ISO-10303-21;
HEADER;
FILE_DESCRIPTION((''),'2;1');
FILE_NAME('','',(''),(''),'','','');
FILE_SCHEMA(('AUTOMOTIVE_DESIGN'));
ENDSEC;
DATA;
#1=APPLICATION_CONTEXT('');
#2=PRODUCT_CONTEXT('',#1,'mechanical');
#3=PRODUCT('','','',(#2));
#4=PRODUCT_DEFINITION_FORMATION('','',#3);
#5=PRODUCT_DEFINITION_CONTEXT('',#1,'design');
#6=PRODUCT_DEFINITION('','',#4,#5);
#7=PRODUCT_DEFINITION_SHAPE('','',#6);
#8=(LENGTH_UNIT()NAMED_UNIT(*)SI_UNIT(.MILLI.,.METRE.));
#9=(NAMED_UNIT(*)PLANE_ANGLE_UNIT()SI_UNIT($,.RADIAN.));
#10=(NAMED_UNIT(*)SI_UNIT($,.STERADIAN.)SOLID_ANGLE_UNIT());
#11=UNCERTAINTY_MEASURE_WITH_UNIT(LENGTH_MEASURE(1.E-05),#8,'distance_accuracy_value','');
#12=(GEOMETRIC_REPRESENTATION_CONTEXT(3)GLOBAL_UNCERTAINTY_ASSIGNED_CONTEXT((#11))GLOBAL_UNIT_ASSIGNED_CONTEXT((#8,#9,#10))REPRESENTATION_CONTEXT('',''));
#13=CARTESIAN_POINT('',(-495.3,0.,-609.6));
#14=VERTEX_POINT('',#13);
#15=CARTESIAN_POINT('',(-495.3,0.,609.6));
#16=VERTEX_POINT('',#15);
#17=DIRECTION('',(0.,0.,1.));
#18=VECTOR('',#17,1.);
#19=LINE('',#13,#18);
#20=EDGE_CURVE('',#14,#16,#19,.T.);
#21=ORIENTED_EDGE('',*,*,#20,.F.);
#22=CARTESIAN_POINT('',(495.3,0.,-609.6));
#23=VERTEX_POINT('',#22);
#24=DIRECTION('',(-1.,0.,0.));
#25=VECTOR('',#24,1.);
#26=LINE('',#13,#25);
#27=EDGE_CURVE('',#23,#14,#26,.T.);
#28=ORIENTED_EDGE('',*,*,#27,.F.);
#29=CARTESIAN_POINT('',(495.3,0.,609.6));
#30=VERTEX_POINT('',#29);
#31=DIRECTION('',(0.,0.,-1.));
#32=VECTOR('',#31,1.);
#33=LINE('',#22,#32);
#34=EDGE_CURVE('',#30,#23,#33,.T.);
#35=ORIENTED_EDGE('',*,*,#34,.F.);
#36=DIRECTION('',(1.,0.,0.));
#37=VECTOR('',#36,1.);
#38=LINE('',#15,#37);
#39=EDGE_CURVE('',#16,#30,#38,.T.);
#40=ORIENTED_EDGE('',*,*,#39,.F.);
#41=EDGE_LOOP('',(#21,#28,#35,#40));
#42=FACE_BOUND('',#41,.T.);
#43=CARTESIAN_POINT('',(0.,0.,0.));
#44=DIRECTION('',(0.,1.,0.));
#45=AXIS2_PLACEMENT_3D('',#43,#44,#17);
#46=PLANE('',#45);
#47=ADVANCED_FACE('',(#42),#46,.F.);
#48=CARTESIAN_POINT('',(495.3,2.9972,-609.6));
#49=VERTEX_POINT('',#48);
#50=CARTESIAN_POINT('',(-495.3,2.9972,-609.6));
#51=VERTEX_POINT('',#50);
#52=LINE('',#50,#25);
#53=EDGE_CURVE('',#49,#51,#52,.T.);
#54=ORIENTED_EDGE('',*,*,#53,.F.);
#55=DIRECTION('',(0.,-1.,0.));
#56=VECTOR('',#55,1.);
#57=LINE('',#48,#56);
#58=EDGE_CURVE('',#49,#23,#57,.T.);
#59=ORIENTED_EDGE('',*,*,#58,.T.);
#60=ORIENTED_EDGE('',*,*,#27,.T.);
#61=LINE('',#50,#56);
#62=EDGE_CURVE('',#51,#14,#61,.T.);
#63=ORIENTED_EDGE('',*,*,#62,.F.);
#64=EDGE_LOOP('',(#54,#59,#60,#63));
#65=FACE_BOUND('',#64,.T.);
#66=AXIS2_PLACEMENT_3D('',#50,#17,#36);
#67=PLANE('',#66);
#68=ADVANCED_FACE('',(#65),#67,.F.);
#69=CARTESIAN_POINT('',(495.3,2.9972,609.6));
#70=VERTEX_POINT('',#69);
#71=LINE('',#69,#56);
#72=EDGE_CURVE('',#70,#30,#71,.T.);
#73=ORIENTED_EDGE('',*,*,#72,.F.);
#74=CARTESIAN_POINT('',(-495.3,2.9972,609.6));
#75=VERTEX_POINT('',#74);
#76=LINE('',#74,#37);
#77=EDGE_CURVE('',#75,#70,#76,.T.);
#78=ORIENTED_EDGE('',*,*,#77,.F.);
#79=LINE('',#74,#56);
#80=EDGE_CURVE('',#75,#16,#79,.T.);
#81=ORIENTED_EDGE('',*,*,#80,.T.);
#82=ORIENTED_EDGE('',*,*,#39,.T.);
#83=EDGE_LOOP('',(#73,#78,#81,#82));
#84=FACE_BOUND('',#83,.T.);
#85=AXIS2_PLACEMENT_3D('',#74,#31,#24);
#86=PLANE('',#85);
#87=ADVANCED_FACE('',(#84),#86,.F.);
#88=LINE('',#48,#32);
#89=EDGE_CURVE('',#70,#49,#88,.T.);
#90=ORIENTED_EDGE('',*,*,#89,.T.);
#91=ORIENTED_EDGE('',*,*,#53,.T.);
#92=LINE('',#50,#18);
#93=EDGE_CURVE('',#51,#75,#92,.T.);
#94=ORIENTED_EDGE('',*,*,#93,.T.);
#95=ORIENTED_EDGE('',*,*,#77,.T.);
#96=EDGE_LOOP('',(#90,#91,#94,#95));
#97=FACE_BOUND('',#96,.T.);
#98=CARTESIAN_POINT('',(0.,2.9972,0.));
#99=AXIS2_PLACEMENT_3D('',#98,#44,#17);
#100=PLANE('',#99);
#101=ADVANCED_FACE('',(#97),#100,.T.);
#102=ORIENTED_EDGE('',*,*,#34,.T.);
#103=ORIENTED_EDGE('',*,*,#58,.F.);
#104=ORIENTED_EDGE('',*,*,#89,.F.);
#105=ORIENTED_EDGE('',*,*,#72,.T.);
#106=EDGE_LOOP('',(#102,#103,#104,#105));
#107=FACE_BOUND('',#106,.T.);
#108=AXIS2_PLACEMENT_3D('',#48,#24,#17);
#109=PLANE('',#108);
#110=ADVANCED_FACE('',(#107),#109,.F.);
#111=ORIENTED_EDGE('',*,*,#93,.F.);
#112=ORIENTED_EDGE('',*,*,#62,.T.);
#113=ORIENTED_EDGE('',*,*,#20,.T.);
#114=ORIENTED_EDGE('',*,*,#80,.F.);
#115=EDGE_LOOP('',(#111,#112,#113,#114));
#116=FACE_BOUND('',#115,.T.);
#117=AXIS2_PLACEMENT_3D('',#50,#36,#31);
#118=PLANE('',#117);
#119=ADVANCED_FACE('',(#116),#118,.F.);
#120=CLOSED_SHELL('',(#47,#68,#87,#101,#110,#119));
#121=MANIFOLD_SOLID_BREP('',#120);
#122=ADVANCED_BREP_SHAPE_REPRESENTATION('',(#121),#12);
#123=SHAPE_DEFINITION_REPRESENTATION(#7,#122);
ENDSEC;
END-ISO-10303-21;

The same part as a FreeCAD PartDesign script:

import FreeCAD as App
import Part
import Sketcher
Q = App.Units.Quantity

doc = App.newDocument("Part")
body = doc.addObject("PartDesign::Body", "Body")

sketch1 = body.newObject("Sketcher::SketchObject", "Sketch")
sketch1.AttachmentSupport = (doc.getObject("XZ_Plane"), [""])
sketch1.MapMode = "FlatFace"
sketch1.addGeometry([
    Part.LineSegment(App.Vector(-495.3, -609.6, 0), App.Vector(-495.3, 609.6, 0)),
    Part.LineSegment(App.Vector(-495.3, 609.6, 0), App.Vector(495.3, 609.6, 0)),
    Part.LineSegment(App.Vector(495.3, 609.6, 0), App.Vector(495.3, -609.6, 0)),
    Part.LineSegment(App.Vector(495.3, -609.6, 0), App.Vector(-495.3, -609.6, 0)),
], False)
sketch1.addConstraint([
    Sketcher.Constraint("Coincident", 0, 2, 1, 1),
    Sketcher.Constraint("Coincident", 1, 2, 2, 1),
    Sketcher.Constraint("Coincident", 2, 2, 3, 1),
    Sketcher.Constraint("Coincident", 3, 2, 0, 1),
    Sketcher.Constraint("Vertical", 0),
    Sketcher.Constraint("Horizontal", 1),
    Sketcher.Constraint("Vertical", 2),
    Sketcher.Constraint("Horizontal", 3),
    Sketcher.Constraint("Symmetric", 0, 2, 2, 2, -1, 1),
    Sketcher.Constraint("DistanceX", 1, 1, 1, 2, Q("39 in")),
    Sketcher.Constraint("DistanceY", 0, 1, 0, 2, Q("48 in")),
])
pad1 = body.newObject("PartDesign::Pad", "Pad")
pad1.Profile = sketch1
pad1.Length = Q("0.118 in")
pad1.Reversed = True

doc.recompute()
